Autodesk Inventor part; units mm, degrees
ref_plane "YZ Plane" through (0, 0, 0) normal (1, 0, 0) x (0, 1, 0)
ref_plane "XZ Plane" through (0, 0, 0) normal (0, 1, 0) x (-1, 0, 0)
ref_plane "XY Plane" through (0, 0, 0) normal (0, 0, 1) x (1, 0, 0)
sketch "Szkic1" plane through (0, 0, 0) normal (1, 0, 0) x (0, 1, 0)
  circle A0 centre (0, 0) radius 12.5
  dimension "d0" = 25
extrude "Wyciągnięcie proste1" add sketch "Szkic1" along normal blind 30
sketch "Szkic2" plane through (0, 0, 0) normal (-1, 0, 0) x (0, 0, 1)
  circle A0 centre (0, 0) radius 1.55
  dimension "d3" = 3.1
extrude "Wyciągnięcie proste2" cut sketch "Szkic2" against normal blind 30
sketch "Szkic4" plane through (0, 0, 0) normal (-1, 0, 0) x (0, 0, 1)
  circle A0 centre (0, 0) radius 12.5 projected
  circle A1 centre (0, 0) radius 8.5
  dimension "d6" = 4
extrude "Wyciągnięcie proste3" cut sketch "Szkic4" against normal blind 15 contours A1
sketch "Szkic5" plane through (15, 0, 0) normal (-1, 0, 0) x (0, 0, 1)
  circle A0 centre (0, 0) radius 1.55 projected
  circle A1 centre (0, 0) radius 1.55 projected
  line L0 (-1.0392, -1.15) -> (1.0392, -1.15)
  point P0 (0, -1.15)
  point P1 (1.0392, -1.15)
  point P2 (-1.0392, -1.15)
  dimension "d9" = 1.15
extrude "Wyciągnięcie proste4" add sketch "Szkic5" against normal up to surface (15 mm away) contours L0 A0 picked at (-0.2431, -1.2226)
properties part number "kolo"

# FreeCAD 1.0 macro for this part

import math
import FreeCAD as App
import Part
import Sketcher

doc = App.newDocument("Part")
body = doc.addObject("PartDesign::Body", "Body")

sketch1 = body.newObject("Sketcher::SketchObject", "Sketch")
sketch1.AttachmentSupport = (doc.getObject("YZ_Plane"), [""])
sketch1.MapMode = "FlatFace"
sketch1.addGeometry(Part.Circle(App.Vector(0, 0, 0), App.Vector(0, 0, 1), 12), False)
sketch1.addConstraint([
    Sketcher.Constraint("Coincident", 0, 3, -1, 1),
    Sketcher.Constraint("Diameter", 0, 25.0),
])
pad1 = body.newObject("PartDesign::Pad", "Pad")
pad1.Profile = sketch1
pad1.Length = 30

sketch2 = body.newObject("Sketcher::SketchObject", "Sketch001")
sketch2.AttachmentSupport = (doc.getObject("YZ_Plane"), [""])
sketch2.MapMode = "FlatFace"
sketch2.addGeometry(Part.Circle(App.Vector(0, 0, 0), App.Vector(0, 0, 1), 1.6), False)
sketch2.addConstraint([
    Sketcher.Constraint("Coincident", 0, 3, -1, 1),
    Sketcher.Constraint("Diameter", 0, 3.1),
])
pocket1 = body.newObject("PartDesign::Pocket", "Pocket")
pocket1.Profile = sketch2
pocket1.Length = 30
pocket1.Reversed = True

sketch3 = body.newObject("Sketcher::SketchObject", "Sketch002")
sketch3.AttachmentSupport = (doc.getObject("YZ_Plane"), [""])
sketch3.MapMode = "FlatFace"
sketch3.addGeometry(Part.Circle(App.Vector(0, 0, 0), App.Vector(0, 0, 1), 8), False)
sketch3.addConstraint([
    Sketcher.Constraint("Coincident", 0, 3, -1, 1),
    Sketcher.Constraint("Diameter", 0, 17.0),
])
pocket2 = body.newObject("PartDesign::Pocket", "Pocket001")
pocket2.Profile = sketch3
pocket2.Length = 15
pocket2.Reversed = True

sketch4 = body.newObject("Sketcher::SketchObject", "Sketch003")
sketch4.AttachmentSupport = (doc.getObject("YZ_Plane"), [""])
sketch4.MapMode = "FlatFace"
sketch4.AttachmentOffset = App.Placement(App.Vector(0, 0, 15), App.Rotation())
sketch4.addGeometry([
    Part.LineSegment(App.Vector(-1.1, 1, 0), App.Vector(-1.1, -1, 0)),
    Part.ArcOfCircle(Part.Circle(App.Vector(0, 0, 0), App.Vector(0, 0, 1), 1.6), math.radians(138), math.radians(222)),
], False)
sketch4.addConstraint([
    Sketcher.Constraint("Coincident", 0, 1, 1, 1),
    Sketcher.Constraint("Coincident", 1, 2, 0, 2),
    Sketcher.Constraint("Vertical", 0),
    Sketcher.Constraint("Coincident", 1, 3, -1, 1),
    Sketcher.Constraint("DistanceX", 0, 1, -1, 1, 1.15),
    Sketcher.Constraint("Radius", 1, 1.55),
])
pad2 = body.newObject("PartDesign::Pad", "Pad001")
pad2.Profile = sketch4
pad2.Length = 15

doc.recompute()
